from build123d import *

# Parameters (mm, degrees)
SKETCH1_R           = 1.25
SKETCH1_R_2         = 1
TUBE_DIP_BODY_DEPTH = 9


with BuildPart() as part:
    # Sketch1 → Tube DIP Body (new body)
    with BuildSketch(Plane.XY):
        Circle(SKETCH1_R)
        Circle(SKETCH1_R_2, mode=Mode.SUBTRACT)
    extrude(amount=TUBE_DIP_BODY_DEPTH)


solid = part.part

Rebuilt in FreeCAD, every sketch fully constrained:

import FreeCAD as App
import Part
import Sketcher
from FreeCAD import Vector
Q = App.Units.Quantity

doc = App.newDocument("Part")
body = doc.addObject("PartDesign::Body", "Body")

sketch1 = body.newObject("Sketcher::SketchObject", "Sketch")
sketch1.AttachmentSupport = (doc.getObject("XY_Plane"), [""])
sketch1.MapMode = "FlatFace"
sketch1.addGeometry([
    Part.Circle(Vector(0, 0, 0), Vector(0, 0, 1), 1.2),
    Part.Circle(Vector(0, 0, 0), Vector(0, 0, 1), 1),
], False)
sketch1.addConstraint([
    Sketcher.Constraint("Coincident", 0, 3, -1, 1),
    Sketcher.Constraint("Coincident", 1, 3, -1, 1),
    Sketcher.Constraint("Diameter", 1, Q("2 mm")),
    Sketcher.Constraint("Diameter", 0, Q("2.5 mm")),
])
pad1 = body.newObject("PartDesign::Pad", "Pad")
pad1.Profile = sketch1
pad1.Length = 9

doc.recompute()
